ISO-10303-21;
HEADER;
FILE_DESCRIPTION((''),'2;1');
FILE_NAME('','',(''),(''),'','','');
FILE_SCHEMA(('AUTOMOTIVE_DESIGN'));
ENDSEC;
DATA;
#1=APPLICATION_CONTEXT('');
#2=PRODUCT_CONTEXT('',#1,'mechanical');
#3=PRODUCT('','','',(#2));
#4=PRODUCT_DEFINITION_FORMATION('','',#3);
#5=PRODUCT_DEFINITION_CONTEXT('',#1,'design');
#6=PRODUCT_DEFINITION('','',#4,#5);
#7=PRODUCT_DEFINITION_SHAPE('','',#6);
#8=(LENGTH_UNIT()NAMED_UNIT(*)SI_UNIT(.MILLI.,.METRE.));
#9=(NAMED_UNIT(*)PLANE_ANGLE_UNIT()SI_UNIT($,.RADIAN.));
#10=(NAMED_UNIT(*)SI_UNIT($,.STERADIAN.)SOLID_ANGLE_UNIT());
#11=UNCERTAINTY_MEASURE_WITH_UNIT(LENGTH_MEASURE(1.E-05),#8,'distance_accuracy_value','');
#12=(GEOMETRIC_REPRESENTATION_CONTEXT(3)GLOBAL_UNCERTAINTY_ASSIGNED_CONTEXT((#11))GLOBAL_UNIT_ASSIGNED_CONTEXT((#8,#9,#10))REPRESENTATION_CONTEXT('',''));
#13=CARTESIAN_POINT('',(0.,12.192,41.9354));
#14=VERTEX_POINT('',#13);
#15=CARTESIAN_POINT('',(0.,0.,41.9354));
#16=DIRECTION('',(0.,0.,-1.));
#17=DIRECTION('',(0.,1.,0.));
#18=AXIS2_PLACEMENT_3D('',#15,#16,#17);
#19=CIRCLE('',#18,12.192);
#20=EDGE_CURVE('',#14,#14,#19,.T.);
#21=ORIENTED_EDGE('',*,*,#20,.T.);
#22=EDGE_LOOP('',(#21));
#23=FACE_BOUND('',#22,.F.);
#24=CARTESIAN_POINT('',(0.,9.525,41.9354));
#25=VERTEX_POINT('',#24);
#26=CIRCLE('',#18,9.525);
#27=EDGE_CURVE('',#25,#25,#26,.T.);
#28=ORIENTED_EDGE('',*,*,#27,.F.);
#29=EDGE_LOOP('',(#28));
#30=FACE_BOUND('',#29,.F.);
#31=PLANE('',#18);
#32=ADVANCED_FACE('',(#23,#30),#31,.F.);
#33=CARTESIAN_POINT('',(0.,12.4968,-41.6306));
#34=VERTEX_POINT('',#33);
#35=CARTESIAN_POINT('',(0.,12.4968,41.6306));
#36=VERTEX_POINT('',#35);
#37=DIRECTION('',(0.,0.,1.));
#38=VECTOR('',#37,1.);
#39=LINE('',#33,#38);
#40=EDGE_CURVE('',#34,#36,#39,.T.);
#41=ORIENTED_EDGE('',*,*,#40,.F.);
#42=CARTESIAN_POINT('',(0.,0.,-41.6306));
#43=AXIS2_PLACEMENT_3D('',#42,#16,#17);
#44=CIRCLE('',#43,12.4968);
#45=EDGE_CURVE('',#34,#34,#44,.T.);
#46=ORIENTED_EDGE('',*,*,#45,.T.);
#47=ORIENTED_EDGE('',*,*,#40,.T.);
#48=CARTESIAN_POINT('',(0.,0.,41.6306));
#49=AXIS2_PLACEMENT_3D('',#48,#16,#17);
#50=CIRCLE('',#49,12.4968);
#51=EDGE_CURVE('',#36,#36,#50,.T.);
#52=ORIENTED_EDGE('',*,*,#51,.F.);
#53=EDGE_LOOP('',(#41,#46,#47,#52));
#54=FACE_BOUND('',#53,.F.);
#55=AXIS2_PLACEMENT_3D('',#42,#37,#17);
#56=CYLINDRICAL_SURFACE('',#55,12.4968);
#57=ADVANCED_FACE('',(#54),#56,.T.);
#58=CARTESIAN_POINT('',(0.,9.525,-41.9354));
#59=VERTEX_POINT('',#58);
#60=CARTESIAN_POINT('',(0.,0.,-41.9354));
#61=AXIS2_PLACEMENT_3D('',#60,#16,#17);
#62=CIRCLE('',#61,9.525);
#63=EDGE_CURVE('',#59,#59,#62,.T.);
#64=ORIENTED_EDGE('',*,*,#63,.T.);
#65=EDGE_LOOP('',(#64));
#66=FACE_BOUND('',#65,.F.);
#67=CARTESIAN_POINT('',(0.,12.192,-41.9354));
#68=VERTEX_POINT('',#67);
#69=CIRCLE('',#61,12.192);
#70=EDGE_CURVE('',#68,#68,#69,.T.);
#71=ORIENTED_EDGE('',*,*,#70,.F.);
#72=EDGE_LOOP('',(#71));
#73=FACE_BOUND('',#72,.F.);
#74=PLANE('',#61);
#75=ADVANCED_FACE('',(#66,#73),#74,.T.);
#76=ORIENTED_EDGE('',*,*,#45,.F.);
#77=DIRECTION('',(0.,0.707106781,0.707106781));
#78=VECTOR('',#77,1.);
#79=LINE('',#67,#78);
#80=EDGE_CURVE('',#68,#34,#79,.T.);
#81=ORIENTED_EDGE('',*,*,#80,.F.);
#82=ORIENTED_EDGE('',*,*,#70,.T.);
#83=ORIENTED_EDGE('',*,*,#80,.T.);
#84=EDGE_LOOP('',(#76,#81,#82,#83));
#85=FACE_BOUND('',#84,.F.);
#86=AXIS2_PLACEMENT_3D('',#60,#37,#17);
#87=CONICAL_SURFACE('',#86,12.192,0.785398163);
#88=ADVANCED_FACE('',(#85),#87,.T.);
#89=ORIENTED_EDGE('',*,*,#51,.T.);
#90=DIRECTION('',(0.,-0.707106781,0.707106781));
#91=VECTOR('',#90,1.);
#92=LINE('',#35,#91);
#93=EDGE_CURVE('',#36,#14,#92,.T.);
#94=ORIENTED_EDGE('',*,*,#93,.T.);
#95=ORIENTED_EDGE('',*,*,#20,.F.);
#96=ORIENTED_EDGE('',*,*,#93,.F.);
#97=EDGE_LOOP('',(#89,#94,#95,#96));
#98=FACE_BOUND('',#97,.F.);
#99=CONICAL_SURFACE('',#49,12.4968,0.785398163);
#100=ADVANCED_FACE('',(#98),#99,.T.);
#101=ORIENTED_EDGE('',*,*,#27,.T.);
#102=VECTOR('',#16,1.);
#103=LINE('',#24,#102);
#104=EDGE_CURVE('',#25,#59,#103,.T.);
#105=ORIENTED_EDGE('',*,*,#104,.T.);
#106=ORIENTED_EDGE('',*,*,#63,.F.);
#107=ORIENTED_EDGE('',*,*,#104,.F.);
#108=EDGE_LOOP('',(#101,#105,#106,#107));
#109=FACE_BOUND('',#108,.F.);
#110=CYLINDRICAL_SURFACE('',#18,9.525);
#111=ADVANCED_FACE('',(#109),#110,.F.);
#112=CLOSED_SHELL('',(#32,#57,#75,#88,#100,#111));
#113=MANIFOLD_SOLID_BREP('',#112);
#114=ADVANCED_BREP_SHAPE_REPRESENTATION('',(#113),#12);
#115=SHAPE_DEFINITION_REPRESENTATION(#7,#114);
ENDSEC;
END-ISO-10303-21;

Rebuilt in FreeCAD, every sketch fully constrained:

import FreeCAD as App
import Part
import Sketcher
from FreeCAD import Vector
Q = App.Units.Quantity


def add_polygon(sketch, points):
    """Adds a closed chain of lines whose ends are joined by coincident constraints."""
    first, n = sketch.GeometryCount, len(points)
    for a, b in zip(points, points[1:] + points[:1]):
        sketch.addGeometry(Part.LineSegment(App.Vector(*a, 0), App.Vector(*b, 0)), False)
    for i in range(n):
        sketch.addConstraint(Sketcher.Constraint("Coincident", first + i, 2, first + (i + 1) % n, 1))

doc = App.newDocument("Part")
body = doc.addObject("PartDesign::Body", "Body")

# Sketch on YZ plane
sketch1 = body.newObject("Sketcher::SketchObject", "Sketch")
sketch1.AttachmentSupport = (doc.getObject("YZ_Plane"), [""])
sketch1.MapMode = "FlatFace"
add_polygon(sketch1, [(12.19, 41.94), (9.53, 41.94), (9.53, -41.94), (12.19, -41.94), (12.5, -41.63), (12.5, 41.63)])  # lines 0-5
sketch1.addConstraint(Sketcher.Constraint("Horizontal", 0))
sketch1.addConstraint(Sketcher.Constraint("Vertical", 1))
sketch1.addConstraint(Sketcher.Constraint("Horizontal", 2))
sketch1.addConstraint(Sketcher.Constraint("Vertical", 4))
sketch1.addConstraint(Sketcher.Constraint("Symmetric", 2, 2, 5, 2, -1))
sketch1.addConstraint(Sketcher.Constraint("Perpendicular", 3, 5))
sketch1.addConstraint(Sketcher.Constraint("Equal", 3, 5))
sketch1.addConstraint(Sketcher.Constraint("DistanceX", 0, 2, 0, 1, Q("0.105 in")))
sketch1.addConstraint(Sketcher.Constraint("DistanceY", 1, 2, 1, 1, Q("3.302 in")))
sketch1.addConstraint(Sketcher.Constraint("DistanceY", 4, 1, 4, 2, Q("3.278 in")))
sketch1.addConstraint(Sketcher.Constraint("DistanceX", -1, 1, 2, 2, Q("0.48 in")))
revolution = body.newObject("PartDesign::Revolution", "Revolution")
revolution.Profile = sketch1
revolution.ReferenceAxis = (sketch1, ["V_Axis"])
revolution.Angle = 360

doc.recompute()
